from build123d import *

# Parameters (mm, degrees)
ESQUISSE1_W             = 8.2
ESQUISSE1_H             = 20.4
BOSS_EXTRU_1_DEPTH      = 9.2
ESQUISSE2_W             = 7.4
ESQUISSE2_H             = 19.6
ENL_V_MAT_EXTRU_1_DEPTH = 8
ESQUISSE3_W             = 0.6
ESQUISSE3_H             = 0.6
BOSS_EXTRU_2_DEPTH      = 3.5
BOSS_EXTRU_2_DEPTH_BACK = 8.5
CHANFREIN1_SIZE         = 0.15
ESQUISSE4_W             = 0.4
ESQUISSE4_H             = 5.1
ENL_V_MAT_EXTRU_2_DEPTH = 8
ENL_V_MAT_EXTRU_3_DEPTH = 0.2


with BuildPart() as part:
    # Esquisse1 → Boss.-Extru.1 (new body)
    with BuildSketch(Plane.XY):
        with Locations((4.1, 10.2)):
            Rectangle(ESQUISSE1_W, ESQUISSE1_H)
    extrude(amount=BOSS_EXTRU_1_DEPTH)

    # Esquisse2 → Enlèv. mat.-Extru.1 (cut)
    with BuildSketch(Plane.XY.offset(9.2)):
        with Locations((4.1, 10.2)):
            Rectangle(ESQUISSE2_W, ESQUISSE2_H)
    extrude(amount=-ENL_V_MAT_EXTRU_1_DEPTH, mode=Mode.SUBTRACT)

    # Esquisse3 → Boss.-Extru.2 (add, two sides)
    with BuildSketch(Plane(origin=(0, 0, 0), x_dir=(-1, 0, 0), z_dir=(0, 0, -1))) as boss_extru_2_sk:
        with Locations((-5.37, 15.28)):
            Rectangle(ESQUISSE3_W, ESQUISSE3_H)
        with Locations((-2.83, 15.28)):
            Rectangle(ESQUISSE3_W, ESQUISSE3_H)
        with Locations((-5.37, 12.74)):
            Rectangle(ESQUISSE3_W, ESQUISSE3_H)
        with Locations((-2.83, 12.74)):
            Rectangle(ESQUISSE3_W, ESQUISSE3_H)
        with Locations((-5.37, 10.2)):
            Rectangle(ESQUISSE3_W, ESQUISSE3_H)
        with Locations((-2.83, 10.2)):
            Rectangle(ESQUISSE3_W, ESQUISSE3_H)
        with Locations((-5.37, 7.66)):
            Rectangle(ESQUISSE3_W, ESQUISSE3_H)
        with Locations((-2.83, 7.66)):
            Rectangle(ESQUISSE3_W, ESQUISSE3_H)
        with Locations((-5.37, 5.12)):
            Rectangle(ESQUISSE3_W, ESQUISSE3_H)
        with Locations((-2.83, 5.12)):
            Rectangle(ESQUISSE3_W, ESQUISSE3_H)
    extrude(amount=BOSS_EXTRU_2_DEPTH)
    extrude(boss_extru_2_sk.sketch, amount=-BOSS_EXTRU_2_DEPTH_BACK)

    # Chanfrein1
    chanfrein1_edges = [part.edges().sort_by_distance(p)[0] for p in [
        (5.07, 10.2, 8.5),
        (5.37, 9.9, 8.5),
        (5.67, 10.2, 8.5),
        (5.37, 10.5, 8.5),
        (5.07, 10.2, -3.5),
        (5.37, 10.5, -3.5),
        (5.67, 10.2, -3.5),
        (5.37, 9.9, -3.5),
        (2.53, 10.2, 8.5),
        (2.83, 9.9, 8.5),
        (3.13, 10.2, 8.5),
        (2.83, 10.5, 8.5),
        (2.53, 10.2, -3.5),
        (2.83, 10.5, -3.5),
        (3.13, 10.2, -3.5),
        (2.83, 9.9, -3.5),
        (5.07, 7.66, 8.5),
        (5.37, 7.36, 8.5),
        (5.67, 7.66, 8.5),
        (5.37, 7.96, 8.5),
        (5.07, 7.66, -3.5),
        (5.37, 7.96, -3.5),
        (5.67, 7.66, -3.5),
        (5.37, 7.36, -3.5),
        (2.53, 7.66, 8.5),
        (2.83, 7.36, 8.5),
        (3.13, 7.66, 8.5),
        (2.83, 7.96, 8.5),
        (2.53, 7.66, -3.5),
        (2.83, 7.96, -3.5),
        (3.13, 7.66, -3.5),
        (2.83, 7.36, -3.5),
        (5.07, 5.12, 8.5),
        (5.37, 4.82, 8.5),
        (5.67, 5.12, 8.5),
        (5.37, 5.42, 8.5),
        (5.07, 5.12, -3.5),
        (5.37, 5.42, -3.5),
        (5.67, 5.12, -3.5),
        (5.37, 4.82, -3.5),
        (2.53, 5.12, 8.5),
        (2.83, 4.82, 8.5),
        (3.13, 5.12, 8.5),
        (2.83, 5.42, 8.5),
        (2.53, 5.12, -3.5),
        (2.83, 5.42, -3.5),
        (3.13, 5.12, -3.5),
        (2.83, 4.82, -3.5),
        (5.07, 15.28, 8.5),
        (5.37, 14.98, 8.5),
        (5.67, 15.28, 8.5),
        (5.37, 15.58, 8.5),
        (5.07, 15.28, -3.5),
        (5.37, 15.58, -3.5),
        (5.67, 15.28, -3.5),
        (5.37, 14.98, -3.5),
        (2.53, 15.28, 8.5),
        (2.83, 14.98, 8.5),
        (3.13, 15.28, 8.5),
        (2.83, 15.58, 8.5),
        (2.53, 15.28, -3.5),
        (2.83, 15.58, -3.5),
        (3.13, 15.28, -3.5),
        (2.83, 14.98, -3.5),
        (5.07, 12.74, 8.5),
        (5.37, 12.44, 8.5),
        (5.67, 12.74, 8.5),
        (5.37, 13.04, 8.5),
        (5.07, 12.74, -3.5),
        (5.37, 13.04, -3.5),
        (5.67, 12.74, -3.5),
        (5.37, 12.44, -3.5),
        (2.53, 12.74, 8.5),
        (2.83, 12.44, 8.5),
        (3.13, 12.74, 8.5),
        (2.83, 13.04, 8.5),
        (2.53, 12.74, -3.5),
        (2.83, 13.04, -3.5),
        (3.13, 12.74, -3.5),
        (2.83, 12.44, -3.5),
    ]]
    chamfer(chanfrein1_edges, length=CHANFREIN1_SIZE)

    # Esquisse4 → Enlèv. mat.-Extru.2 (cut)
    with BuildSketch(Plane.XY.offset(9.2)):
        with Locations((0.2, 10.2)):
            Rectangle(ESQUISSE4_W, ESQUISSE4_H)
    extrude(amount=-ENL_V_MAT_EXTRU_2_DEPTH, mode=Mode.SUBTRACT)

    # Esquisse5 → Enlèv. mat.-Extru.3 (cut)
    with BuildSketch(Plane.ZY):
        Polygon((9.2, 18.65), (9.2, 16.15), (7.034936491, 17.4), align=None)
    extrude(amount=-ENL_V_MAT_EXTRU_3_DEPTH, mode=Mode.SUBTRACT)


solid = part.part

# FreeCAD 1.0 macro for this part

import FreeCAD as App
import Part
import Sketcher

V = App.Vector
Q = App.Units.Quantity


def edges_at(feature, points):
    """Names of the edges that pass closest to the given points."""
    edges = feature.Shape.Edges
    near = lambda p: min(range(len(edges)), key=lambda i: edges[i].distToShape(Part.Vertex(*p))[0])
    return sorted({f"Edge{near(p) + 1}" for p in points})


def add_polygon(sketch, points):
    """Adds a closed chain of lines whose ends are joined by coincident constraints."""
    first, n = sketch.GeometryCount, len(points)
    for a, b in zip(points, points[1:] + points[:1]):
        sketch.addGeometry(Part.LineSegment(App.Vector(*a, 0), App.Vector(*b, 0)), False)
    for i in range(n):
        sketch.addConstraint(Sketcher.Constraint("Coincident", first + i, 2, first + (i + 1) % n, 1))

doc = App.newDocument("Part")
body = doc.addObject("PartDesign::Body", "Body")

# Sketch on XY plane
sketch1 = body.newObject("Sketcher::SketchObject", "Sketch")
sketch1.AttachmentSupport = (doc.getObject("XY_Plane"), [""])
sketch1.MapMode = "FlatFace"
add_polygon(sketch1, [(0, 20), (0, 0), (8, 0), (8, 20)])  # lines 0-3
sketch1.addConstraint([
    Sketcher.Constraint("Vertical", 0),
    Sketcher.Constraint("Horizontal", 1),
    Sketcher.Constraint("Vertical", 2),
    Sketcher.Constraint("Horizontal", 3),
    Sketcher.Constraint("Coincident", 0, 2, -1, 1),
    Sketcher.Constraint("DistanceX", 1, 1, 1, 2, 8.2),
    Sketcher.Constraint("DistanceY", 0, 2, 0, 1, 20.4),
])
pad1 = body.newObject("PartDesign::Pad", "Pad")
pad1.Profile = sketch1
pad1.Length = 9.2

# Sketch on XY plane
sketch2 = body.newObject("Sketcher::SketchObject", "Sketch001")
sketch2.AttachmentSupport = (doc.getObject("XY_Plane"), [""])
sketch2.MapMode = "FlatFace"
sketch2.AttachmentOffset = App.Placement(V(0, 0, 9.2), App.Rotation())
add_polygon(sketch2, [(0, 20), (0, 0), (8, 0), (8, 20)])  # lines 0-3
sketch2.addConstraint([
    Sketcher.Constraint("Vertical", 0),
    Sketcher.Constraint("Horizontal", 1),
    Sketcher.Constraint("Vertical", 2),
    Sketcher.Constraint("Horizontal", 3),
    Sketcher.Constraint("DistanceX", 1, 1, 1, 2, 7.4),
    Sketcher.Constraint("DistanceY", 0, 2, 0, 1, 19.6),
    Sketcher.Constraint("DistanceY", -1, 1, 2, 2, 20.0),
    Sketcher.Constraint("DistanceX", -1, 1, 0, 2, 0.4),
])
pocket1 = body.newObject("PartDesign::Pocket", "Pocket")
pocket1.Profile = sketch2
pocket1.Length = 8

# Sketch on XY plane
sketch3 = body.newObject("Sketcher::SketchObject", "Sketch002")
sketch3.AttachmentSupport = (doc.getObject("XY_Plane"), [""])
sketch3.MapMode = "FlatFace"
add_polygon(sketch3, [(5.7, 15.6), (5.7, 15), (5.1, 15), (5.1, 15.6)])  # lines 0-3
add_polygon(sketch3, [(3.1, 15.6), (3.1, 15), (2.5, 15), (2.5, 15.6)])  # lines 4-7
add_polygon(sketch3, [(5.7, 13), (5.7, 12.4), (5.1, 12.4), (5.1, 13)])  # lines 8-11
add_polygon(sketch3, [(3.1, 13), (3.1, 12.4), (2.5, 12.4), (2.5, 13)])  # lines 12-15
add_polygon(sketch3, [(5.7, 10.5), (5.7, 9.9), (5.1, 9.9), (5.1, 10.5)])  # lines 16-19
add_polygon(sketch3, [(3.1, 10.5), (3.1, 9.9), (2.5, 9.9), (2.5, 10.5)])  # lines 20-23
add_polygon(sketch3, [(5.7, 8), (5.7, 7.4), (5.1, 7.4), (5.1, 8)])  # lines 24-27
add_polygon(sketch3, [(3.1, 8), (3.1, 7.4), (2.5, 7.4), (2.5, 8)])  # lines 28-31
add_polygon(sketch3, [(5.7, 5.4), (5.7, 4.8), (5.1, 4.8), (5.1, 5.4)])  # lines 32-35
add_polygon(sketch3, [(3.1, 5.4), (3.1, 4.8), (2.5, 4.8), (2.5, 5.4)])  # lines 36-39
sketch3.addConstraint([
    Sketcher.Constraint("Vertical", 0),
    Sketcher.Constraint("Horizontal", 1),
    Sketcher.Constraint("Vertical", 2),
    Sketcher.Constraint("Horizontal", 3),
    Sketcher.Constraint("Vertical", 4),
    Sketcher.Constraint("Horizontal", 5),
    Sketcher.Constraint("Vertical", 6),
    Sketcher.Constraint("Horizontal", 7),
    Sketcher.Constraint("Vertical", 8),
    Sketcher.Constraint("Horizontal", 9),
    Sketcher.Constraint("Vertical", 10),
    Sketcher.Constraint("Horizontal", 11),
    Sketcher.Constraint("Vertical", 12),
    Sketcher.Constraint("Horizontal", 13),
    Sketcher.Constraint("Vertical", 14),
    Sketcher.Constraint("Horizontal", 15),
    Sketcher.Constraint("Vertical", 16),
    Sketcher.Constraint("Horizontal", 17),
    Sketcher.Constraint("Vertical", 18),
    Sketcher.Constraint("Horizontal", 19),
    Sketcher.Constraint("Vertical", 20),
    Sketcher.Constraint("Horizontal", 21),
    Sketcher.Constraint("Vertical", 22),
    Sketcher.Constraint("Horizontal", 23),
    Sketcher.Constraint("Vertical", 24),
    Sketcher.Constraint("Horizontal", 25),
    Sketcher.Constraint("Vertical", 26),
    Sketcher.Constraint("Horizontal", 27),
    Sketcher.Constraint("Vertical", 28),
    Sketcher.Constraint("Horizontal", 29),
    Sketcher.Constraint("Vertical", 30),
    Sketcher.Constraint("Horizontal", 31),
    Sketcher.Constraint("Vertical", 32),
    Sketcher.Constraint("Horizontal", 33),
    Sketcher.Constraint("Vertical", 34),
    Sketcher.Constraint("Horizontal", 35),
    Sketcher.Constraint("Vertical", 36),
    Sketcher.Constraint("Horizontal", 37),
    Sketcher.Constraint("Vertical", 38),
    Sketcher.Constraint("Horizontal", 39),
    Sketcher.Constraint("Horizontal", 1, 2, 4, 2),
    Sketcher.Constraint("Horizontal", 3, 2, 6, 2),
    Sketcher.Constraint("Horizontal", 9, 2, 12, 2),
    Sketcher.Constraint("Horizontal", 11, 2, 14, 2),
    Sketcher.Constraint("Horizontal", 17, 2, 20, 2),
    Sketcher.Constraint("Horizontal", 19, 2, 22, 2),
    Sketcher.Constraint("Horizontal", 25, 2, 28, 2),
    Sketcher.Constraint("Horizontal", 27, 2, 30, 2),
    Sketcher.Constraint("Horizontal", 33, 2, 36, 2),
    Sketcher.Constraint("Horizontal", 35, 2, 38, 2),
    Sketcher.Constraint("Vertical", 3, 2, 8, 2),
    Sketcher.Constraint("Vertical", 2, 2, 9, 2),
    Sketcher.Constraint("Vertical", 7, 2, 12, 2),
    Sketcher.Constraint("Vertical", 6, 2, 13, 2),
    Sketcher.Constraint("Vertical", 11, 2, 16, 2),
    Sketcher.Constraint("Vertical", 10, 2, 17, 2),
    Sketcher.Constraint("Vertical", 15, 2, 20, 2),
    Sketcher.Constraint("Vertical", 14, 2, 21, 2),
    Sketcher.Constraint("Vertical", 19, 2, 24, 2),
    Sketcher.Constraint("Vertical", 18, 2, 25, 2),
    Sketcher.Constraint("Vertical", 23, 2, 28, 2),
    Sketcher.Constraint("Vertical", 22, 2, 29, 2),
    Sketcher.Constraint("Vertical", 27, 2, 32, 2),
    Sketcher.Constraint("Vertical", 26, 2, 33, 2),
    Sketcher.Constraint("Vertical", 31, 2, 36, 2),
    Sketcher.Constraint("Vertical", 30, 2, 37, 2),
    Sketcher.Constraint("Equal", 3, 5),
    Sketcher.Constraint("Equal", 39, 0),
    Sketcher.Constraint("Equal", 6, 8),
    Sketcher.Constraint("Equal", 14, 16),
    Sketcher.Constraint("Equal", 22, 24),
    Sketcher.Constraint("Equal", 30, 32),
    Sketcher.Constraint("DistanceX", 1, 2, 1, 1, 0.6),
    Sketcher.Constraint("DistanceY", -1, 1, 16, 2, 9.9),
    Sketcher.Constraint("DistanceX", -1, 1, 0, 2, 5.67),
    Sketcher.Constraint("DistanceY", -1, 1, 0, 2, 14.98),
    Sketcher.Constraint("DistanceX", -1, 1, 4, 2, 3.13),
    Sketcher.Constraint("DistanceY", -1, 1, 8, 2, 12.44),
    Sketcher.Constraint("DistanceY", -1, 1, 24, 2, 7.36),
    Sketcher.Constraint("DistanceY", -1, 1, 32, 2, 4.82),
])
pad2 = body.newObject("PartDesign::Pad", "Pad001")
pad2.Profile = sketch3
pad2.Type = "TwoLengths"
pad2.Length = 3.5
pad2.Length2 = 8.5
pad2.Reversed = True
doc.recompute()

chamfer = body.newObject("PartDesign::Chamfer", "Chamfer")
chamfer.Base = (pad2, edges_at(pad2, [
    (5.07, 10.2, 8.5),
    (5.37, 9.9, 8.5),
    (5.67, 10.2, 8.5),
    (5.37, 10.5, 8.5),
    (5.07, 10.2, -3.5),
    (5.37, 10.5, -3.5),
    (5.67, 10.2, -3.5),
    (5.37, 9.9, -3.5),
    (2.53, 10.2, 8.5),
    (2.83, 9.9, 8.5),
    (3.13, 10.2, 8.5),
    (2.83, 10.5, 8.5),
    (2.53, 10.2, -3.5),
    (2.83, 10.5, -3.5),
    (3.13, 10.2, -3.5),
    (2.83, 9.9, -3.5),
    (5.07, 7.66, 8.5),
    (5.37, 7.36, 8.5),
    (5.67, 7.66, 8.5),
    (5.37, 7.96, 8.5),
    (5.07, 7.66, -3.5),
    (5.37, 7.96, -3.5),
    (5.67, 7.66, -3.5),
    (5.37, 7.36, -3.5),
    (2.53, 7.66, 8.5),
    (2.83, 7.36, 8.5),
    (3.13, 7.66, 8.5),
    (2.83, 7.96, 8.5),
    (2.53, 7.66, -3.5),
    (2.83, 7.96, -3.5),
    (3.13, 7.66, -3.5),
    (2.83, 7.36, -3.5),
    (5.07, 5.12, 8.5),
    (5.37, 4.82, 8.5),
    (5.67, 5.12, 8.5),
    (5.37, 5.42, 8.5),
    (5.07, 5.12, -3.5),
    (5.37, 5.42, -3.5),
    (5.67, 5.12, -3.5),
    (5.37, 4.82, -3.5),
    (2.53, 5.12, 8.5),
    (2.83, 4.82, 8.5),
    (3.13, 5.12, 8.5),
    (2.83, 5.42, 8.5),
    (2.53, 5.12, -3.5),
    (2.83, 5.42, -3.5),
    (3.13, 5.12, -3.5),
    (2.83, 4.82, -3.5),
    (5.07, 15.28, 8.5),
    (5.37, 14.98, 8.5),
    (5.67, 15.28, 8.5),
    (5.37, 15.58, 8.5),
    (5.07, 15.28, -3.5),
    (5.37, 15.58, -3.5),
    (5.67, 15.28, -3.5),
    (5.37, 14.98, -3.5),
    (2.53, 15.28, 8.5),
    (2.83, 14.98, 8.5),
    (3.13, 15.28, 8.5),
    (2.83, 15.58, 8.5),
    (2.53, 15.28, -3.5),
    (2.83, 15.58, -3.5),
    (3.13, 15.28, -3.5),
    (2.83, 14.98, -3.5),
    (5.07, 12.74, 8.5),
    (5.37, 12.44, 8.5),
    (5.67, 12.74, 8.5),
    (5.37, 13.04, 8.5),
    (5.07, 12.74, -3.5),
    (5.37, 13.04, -3.5),
    (5.67, 12.74, -3.5),
    (5.37, 12.44, -3.5),
    (2.53, 12.74, 8.5),
    (2.83, 12.44, 8.5),
    (3.13, 12.74, 8.5),
    (2.83, 13.04, 8.5),
    (2.53, 12.74, -3.5),
    (2.83, 13.04, -3.5),
    (3.13, 12.74, -3.5),
    (2.83, 12.44, -3.5),
]))
chamfer.Size = 0.15

# Sketch on XY plane
sketch4 = body.newObject("Sketcher::SketchObject", "Sketch003")
sketch4.AttachmentSupport = (doc.getObject("XY_Plane"), [""])
sketch4.MapMode = "FlatFace"
sketch4.AttachmentOffset = App.Placement(V(0, 0, 9.2), App.Rotation())
add_polygon(sketch4, [(0, 12.75), (0, 7.65), (0.4, 7.65), (0.4, 12.75)])  # lines 0-3
sketch4.addConstraint([
    Sketcher.Constraint("Vertical", 0),
    Sketcher.Constraint("Horizontal", 1),
    Sketcher.Constraint("Vertical", 2),
    Sketcher.Constraint("Horizontal", 3),
    Sketcher.Constraint("PointOnObject", 0, 2, -2),
    Sketcher.Constraint("DistanceX", 1, 1, 1, 2, 0.4),
    Sketcher.Constraint("DistanceY", 0, 2, 0, 1, 5.1),
    Sketcher.Constraint("DistanceY", -1, 1, 0, 2, 7.65),
])
pocket2 = body.newObject("PartDesign::Pocket", "Pocket001")
pocket2.Profile = sketch4
pocket2.Length = 8

# Sketch on YZ plane
sketch5 = body.newObject("Sketcher::SketchObject", "Sketch004")
sketch5.AttachmentSupport = (doc.getObject("YZ_Plane"), [""])
sketch5.MapMode = "FlatFace"
add_polygon(sketch5, [(16.1, 9.2), (18.6, 9.2), (17.4, 7)])  # lines 0-2
sketch5.addConstraint([
    Sketcher.Constraint("Horizontal", 0),
    Sketcher.Constraint("Equal", 1, 2),
    Sketcher.Constraint("Angle", 1, Q("-120 deg")),
    Sketcher.Constraint("DistanceX", 0, 1, 0, 2, 2.5),
    Sketcher.Constraint("DistanceY", -1, 1, 0, 2, 9.2),
    Sketcher.Constraint("DistanceX", -1, 1, 1, 2, 17.4),
])
pocket3 = body.newObject("PartDesign::Pocket", "Pocket002")
pocket3.Profile = sketch5
pocket3.Length = 0.2
pocket3.Reversed = True

doc.recompute()
